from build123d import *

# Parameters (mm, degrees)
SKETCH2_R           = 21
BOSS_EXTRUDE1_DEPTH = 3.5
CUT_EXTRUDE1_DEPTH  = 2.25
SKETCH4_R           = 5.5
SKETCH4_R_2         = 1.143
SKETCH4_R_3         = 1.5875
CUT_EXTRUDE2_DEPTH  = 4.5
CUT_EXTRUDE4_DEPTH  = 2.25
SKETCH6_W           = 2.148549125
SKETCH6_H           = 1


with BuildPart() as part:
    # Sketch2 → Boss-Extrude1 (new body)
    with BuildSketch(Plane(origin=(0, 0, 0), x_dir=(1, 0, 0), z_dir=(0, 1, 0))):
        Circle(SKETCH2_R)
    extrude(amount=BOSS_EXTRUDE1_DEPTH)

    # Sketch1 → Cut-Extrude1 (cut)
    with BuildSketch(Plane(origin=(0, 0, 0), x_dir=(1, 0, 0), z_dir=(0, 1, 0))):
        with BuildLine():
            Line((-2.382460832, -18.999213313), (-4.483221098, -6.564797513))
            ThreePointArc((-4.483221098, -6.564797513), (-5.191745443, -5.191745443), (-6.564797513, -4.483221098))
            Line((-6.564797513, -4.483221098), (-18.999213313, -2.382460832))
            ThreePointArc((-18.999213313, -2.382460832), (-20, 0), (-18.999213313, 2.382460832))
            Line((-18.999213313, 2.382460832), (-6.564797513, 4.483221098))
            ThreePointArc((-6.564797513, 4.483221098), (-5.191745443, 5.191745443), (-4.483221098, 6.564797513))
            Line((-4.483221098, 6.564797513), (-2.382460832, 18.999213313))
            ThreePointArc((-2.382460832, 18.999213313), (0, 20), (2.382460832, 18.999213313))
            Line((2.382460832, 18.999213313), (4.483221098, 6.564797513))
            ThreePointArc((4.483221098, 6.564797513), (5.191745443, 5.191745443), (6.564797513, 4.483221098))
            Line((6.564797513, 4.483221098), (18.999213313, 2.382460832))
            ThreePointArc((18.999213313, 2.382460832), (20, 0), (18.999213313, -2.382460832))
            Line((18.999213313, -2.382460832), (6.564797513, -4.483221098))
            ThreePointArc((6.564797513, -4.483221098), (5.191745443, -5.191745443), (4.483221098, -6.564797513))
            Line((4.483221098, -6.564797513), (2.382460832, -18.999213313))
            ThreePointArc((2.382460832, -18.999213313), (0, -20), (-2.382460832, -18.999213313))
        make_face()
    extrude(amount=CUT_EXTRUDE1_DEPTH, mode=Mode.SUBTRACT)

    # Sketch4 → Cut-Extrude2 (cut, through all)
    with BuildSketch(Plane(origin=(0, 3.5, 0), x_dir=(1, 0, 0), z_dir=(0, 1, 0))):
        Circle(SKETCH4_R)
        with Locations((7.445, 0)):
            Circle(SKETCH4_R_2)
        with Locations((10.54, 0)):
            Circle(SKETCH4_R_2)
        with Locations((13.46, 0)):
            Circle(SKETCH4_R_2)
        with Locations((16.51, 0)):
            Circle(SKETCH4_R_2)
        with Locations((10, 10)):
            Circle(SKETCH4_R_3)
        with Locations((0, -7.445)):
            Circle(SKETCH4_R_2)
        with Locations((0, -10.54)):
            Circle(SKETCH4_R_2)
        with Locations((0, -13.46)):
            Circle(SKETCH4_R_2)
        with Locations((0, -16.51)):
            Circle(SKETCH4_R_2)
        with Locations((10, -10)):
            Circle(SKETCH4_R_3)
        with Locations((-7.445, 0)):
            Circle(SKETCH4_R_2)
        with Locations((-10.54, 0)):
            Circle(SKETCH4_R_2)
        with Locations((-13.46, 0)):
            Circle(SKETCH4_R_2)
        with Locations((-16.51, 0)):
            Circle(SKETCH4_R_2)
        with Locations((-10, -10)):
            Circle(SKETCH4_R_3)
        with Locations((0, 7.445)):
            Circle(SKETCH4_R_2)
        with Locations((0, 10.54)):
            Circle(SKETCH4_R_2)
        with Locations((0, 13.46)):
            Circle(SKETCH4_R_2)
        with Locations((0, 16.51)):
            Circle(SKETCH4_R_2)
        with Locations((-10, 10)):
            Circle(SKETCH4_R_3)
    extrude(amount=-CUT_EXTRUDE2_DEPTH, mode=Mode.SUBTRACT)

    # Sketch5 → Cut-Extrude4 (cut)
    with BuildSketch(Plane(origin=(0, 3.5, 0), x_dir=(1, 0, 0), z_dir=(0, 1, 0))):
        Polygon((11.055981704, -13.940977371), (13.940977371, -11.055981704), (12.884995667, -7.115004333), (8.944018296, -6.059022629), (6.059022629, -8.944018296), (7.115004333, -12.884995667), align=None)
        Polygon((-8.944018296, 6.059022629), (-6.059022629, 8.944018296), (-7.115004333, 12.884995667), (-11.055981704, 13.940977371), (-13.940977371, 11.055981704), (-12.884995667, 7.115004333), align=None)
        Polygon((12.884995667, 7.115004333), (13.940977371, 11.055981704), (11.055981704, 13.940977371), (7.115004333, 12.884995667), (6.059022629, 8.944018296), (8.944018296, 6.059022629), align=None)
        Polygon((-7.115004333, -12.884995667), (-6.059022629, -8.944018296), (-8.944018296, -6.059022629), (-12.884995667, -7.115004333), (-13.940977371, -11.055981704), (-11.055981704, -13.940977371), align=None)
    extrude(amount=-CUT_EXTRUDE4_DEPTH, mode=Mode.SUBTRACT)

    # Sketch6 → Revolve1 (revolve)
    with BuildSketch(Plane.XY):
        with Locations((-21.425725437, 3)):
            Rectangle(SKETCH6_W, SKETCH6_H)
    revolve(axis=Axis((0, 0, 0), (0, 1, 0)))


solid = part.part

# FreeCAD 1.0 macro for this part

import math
import FreeCAD as App
import Part
import Sketcher
Q = App.Units.Quantity


def add_polygon(sketch, points):
    """Adds a closed chain of lines whose ends are joined by coincident constraints."""
    first, n = sketch.GeometryCount, len(points)
    for a, b in zip(points, points[1:] + points[:1]):
        sketch.addGeometry(Part.LineSegment(App.Vector(*a, 0), App.Vector(*b, 0)), False)
    for i in range(n):
        sketch.addConstraint(Sketcher.Constraint("Coincident", first + i, 2, first + (i + 1) % n, 1))

doc = App.newDocument("Part")
body = doc.addObject("PartDesign::Body", "Body")

sketch1 = body.newObject("Sketcher::SketchObject", "Sketch")
sketch1.AttachmentSupport = (doc.getObject("XZ_Plane"), [""])
sketch1.MapMode = "FlatFace"
sketch1.addGeometry(Part.Circle(App.Vector(0, 0, 0), App.Vector(0, 0, 1), 21), False)
sketch1.addConstraint(Sketcher.Constraint("Coincident", 0, 3, -1, 1))
sketch1.addConstraint(Sketcher.Constraint("Diameter", 0, Q("42 mm")))
pad1 = body.newObject("PartDesign::Pad", "Pad")
pad1.Profile = sketch1
pad1.Length = 3.5
pad1.Reversed = True

sketch2 = body.newObject("Sketcher::SketchObject", "Sketch001")
sketch2.AttachmentSupport = (doc.getObject("XZ_Plane"), [""])
sketch2.MapMode = "FlatFace"
sketch2.addGeometry(Part.LineSegment(App.Vector(-4.5, 6.6, 0), App.Vector(-2.4, 19, 0)), False)
sketch2.addGeometry(Part.ArcOfCircle(Part.Circle(App.Vector(0, 16.7, 0), App.Vector(0, 0, 1), 3.3), math.radians(44), math.radians(136)), False)
sketch2.addGeometry(Part.LineSegment(App.Vector(2.4, 19, 0), App.Vector(4.5, 6.6, 0)), False)
sketch2.addGeometry(Part.ArcOfCircle(Part.Circle(App.Vector(7, 7, 0), App.Vector(0, 0, 1), 2.5), math.radians(-170), math.radians(-100)), False)
sketch2.addGeometry(Part.LineSegment(App.Vector(6.6, 4.5, 0), App.Vector(19, 2.4, 0)), False)
sketch2.addGeometry(Part.ArcOfCircle(Part.Circle(App.Vector(16.7, 0, 0), App.Vector(0, 0, 1), 3.3), math.radians(-46), math.radians(46)), False)
sketch2.addGeometry(Part.LineSegment(App.Vector(19, -2.4, 0), App.Vector(6.6, -4.5, 0)), False)
sketch2.addGeometry(Part.ArcOfCircle(Part.Circle(App.Vector(7, -7, 0), App.Vector(0, 0, 1), 2.5), math.radians(100), math.radians(170)), False)
sketch2.addGeometry(Part.LineSegment(App.Vector(4.5, -6.6, 0), App.Vector(2.4, -19, 0)), False)
sketch2.addGeometry(Part.ArcOfCircle(Part.Circle(App.Vector(0, -16.7, 0), App.Vector(0, 0, 1), 3.3), math.radians(-136), math.radians(-44)), False)
sketch2.addGeometry(Part.LineSegment(App.Vector(-2.4, -19, 0), App.Vector(-4.5, -6.6, 0)), False)
sketch2.addGeometry(Part.ArcOfCircle(Part.Circle(App.Vector(-7, -7, 0), App.Vector(0, 0, 1), 2.5), math.radians(10), math.radians(80)), False)
sketch2.addGeometry(Part.LineSegment(App.Vector(-6.6, -4.5, 0), App.Vector(-19, -2.4, 0)), False)
sketch2.addGeometry(Part.ArcOfCircle(Part.Circle(App.Vector(-16.7, 0, 0), App.Vector(0, 0, 1), 3.3), math.radians(134), math.radians(226)), False)
sketch2.addGeometry(Part.LineSegment(App.Vector(-19, 2.4, 0), App.Vector(-6.6, 4.5, 0)), False)
sketch2.addGeometry(Part.ArcOfCircle(Part.Circle(App.Vector(-7, 7, 0), App.Vector(0, 0, 1), 2.5), math.radians(-80), math.radians(-10)), False)
sketch2.addConstraint(Sketcher.Constraint("Coincident", 0, 2, 1, 2))
sketch2.addConstraint(Sketcher.Constraint("Coincident", 1, 1, 2, 1))
sketch2.addConstraint(Sketcher.Constraint("Tangent", 2, 2, 3, 1))
sketch2.addConstraint(Sketcher.Constraint("Tangent", 3, 2, 4, 1))
sketch2.addConstraint(Sketcher.Constraint("Coincident", 4, 2, 5, 2))
sketch2.addConstraint(Sketcher.Constraint("Coincident", 5, 1, 6, 1))
sketch2.addConstraint(Sketcher.Constraint("Tangent", 6, 2, 7, 1))
sketch2.addConstraint(Sketcher.Constraint("Tangent", 7, 2, 8, 1))
sketch2.addConstraint(Sketcher.Constraint("Coincident", 8, 2, 9, 2))
sketch2.addConstraint(Sketcher.Constraint("Coincident", 9, 1, 10, 1))
sketch2.addConstraint(Sketcher.Constraint("Tangent", 10, 2, 11, 1))
sketch2.addConstraint(Sketcher.Constraint("Tangent", 11, 2, 12, 1))
sketch2.addConstraint(Sketcher.Constraint("Coincident", 12, 2, 13, 2))
sketch2.addConstraint(Sketcher.Constraint("Coincident", 13, 1, 14, 1))
sketch2.addConstraint(Sketcher.Constraint("Tangent", 14, 2, 15, 1))
sketch2.addConstraint(Sketcher.Constraint("Tangent", 15, 2, 0, 1))
sketch2.addConstraint(Sketcher.Constraint("Equal", 1, 5))
sketch2.addConstraint(Sketcher.Constraint("Equal", 3, 7))
sketch2.addConstraint(Sketcher.Constraint("Equal", 5, 9))
sketch2.addConstraint(Sketcher.Constraint("Equal", 7, 11))
sketch2.addConstraint(Sketcher.Constraint("Equal", 9, 13))
sketch2.addConstraint(Sketcher.Constraint("Equal", 11, 15))
sketch2.addConstraint(Sketcher.Constraint("Symmetric", 1, 3, 9, 3, -1, 1))
sketch2.addConstraint(Sketcher.Constraint("Symmetric", 3, 3, 11, 3, -1, 1))
sketch2.addConstraint(Sketcher.Constraint("Symmetric", 5, 3, 13, 3, -1, 1))
sketch2.addConstraint(Sketcher.Constraint("Symmetric", 7, 3, 15, 3, -1, 1))
sketch2.addConstraint(Sketcher.Constraint("Symmetric", 7, 3, 11, 3, -2))
sketch2.addConstraint(Sketcher.Constraint("Symmetric", 0, 2, 1, 1, -2))
sketch2.addConstraint(Sketcher.Constraint("Symmetric", 5, 1, 12, 2, -2))
sketch2.addConstraint(Sketcher.Constraint("Perpendicular", 0, 4))
sketch2.addConstraint(Sketcher.Constraint("Perpendicular", 2, 6))
sketch2.addConstraint(Sketcher.Constraint("Perpendicular", 4, 8))
sketch2.addConstraint(Sketcher.Constraint("Perpendicular", 6, 10))
sketch2.addConstraint(Sketcher.Constraint("Perpendicular", 10, 14))
sketch2.addConstraint(Sketcher.Constraint("Equal", 2, 4))
sketch2.addConstraint(Sketcher.Constraint("Radius", 3, Q("2.540242 mm")))
sketch2.addConstraint(Sketcher.Constraint("Radius", 1, Q("3.336222 mm")))
sketch2.addConstraint(Sketcher.Constraint("DistanceX", 0, 2, -1, 1, Q("2.382461 mm")))
sketch2.addConstraint(Sketcher.Constraint("DistanceX", -1, 1, 2, 2, Q("4.483221 mm")))
sketch2.addConstraint(Sketcher.Constraint("DistanceY", -1, 1, 3, 2, Q("4.483221 mm")))
sketch2.addConstraint(Sketcher.Constraint("DistanceY", 3, 3, 1, 3, Q("9.67581 mm")))
pocket1 = body.newObject("PartDesign::Pocket", "Pocket")
pocket1.Profile = sketch2
pocket1.Length = 2.25

sketch3 = body.newObject("Sketcher::SketchObject", "Sketch002")
sketch3.AttachmentSupport = (doc.getObject("XZ_Plane"), [""])
sketch3.MapMode = "FlatFace"
sketch3.AttachmentOffset = App.Placement(App.Vector(0, 0, -3.5), App.Rotation())
sketch3.addGeometry(Part.Circle(App.Vector(0, 0, 0), App.Vector(0, 0, 1), 5.5), False)
sketch3.addGeometry(Part.Circle(App.Vector(7.4, 0, 0), App.Vector(0, 0, 1), 1.1), False)
sketch3.addGeometry(Part.Circle(App.Vector(10.5, 0, 0), App.Vector(0, 0, 1), 1.1), False)
sketch3.addGeometry(Part.Circle(App.Vector(13.5, 0, 0), App.Vector(0, 0, 1), 1.1), False)
sketch3.addGeometry(Part.Circle(App.Vector(16.5, 0, 0), App.Vector(0, 0, 1), 1.1), False)
sketch3.addGeometry(Part.Circle(App.Vector(10, -10, 0), App.Vector(0, 0, 1), 1.6), False)
sketch3.addGeometry(Part.Circle(App.Vector(0, 7.4, 0), App.Vector(0, 0, 1), 1.1), False)
sketch3.addGeometry(Part.Circle(App.Vector(0, 10.5, 0), App.Vector(0, 0, 1), 1.1), False)
sketch3.addGeometry(Part.Circle(App.Vector(0, 13.5, 0), App.Vector(0, 0, 1), 1.1), False)
sketch3.addGeometry(Part.Circle(App.Vector(0, 16.5, 0), App.Vector(0, 0, 1), 1.1), False)
sketch3.addGeometry(Part.Circle(App.Vector(10, 10, 0), App.Vector(0, 0, 1), 1.6), False)
sketch3.addGeometry(Part.Circle(App.Vector(-7.4, 0, 0), App.Vector(0, 0, 1), 1.1), False)
sketch3.addGeometry(Part.Circle(App.Vector(-10.5, 0, 0), App.Vector(0, 0, 1), 1.1), False)
sketch3.addGeometry(Part.Circle(App.Vector(-13.5, 0, 0), App.Vector(0, 0, 1), 1.1), False)
sketch3.addGeometry(Part.Circle(App.Vector(-16.5, 0, 0), App.Vector(0, 0, 1), 1.1), False)
sketch3.addGeometry(Part.Circle(App.Vector(-10, 10, 0), App.Vector(0, 0, 1), 1.6), False)
sketch3.addGeometry(Part.Circle(App.Vector(0, -7.4, 0), App.Vector(0, 0, 1), 1.1), False)
sketch3.addGeometry(Part.Circle(App.Vector(0, -10.5, 0), App.Vector(0, 0, 1), 1.1), False)
sketch3.addGeometry(Part.Circle(App.Vector(0, -13.5, 0), App.Vector(0, 0, 1), 1.1), False)
sketch3.addGeometry(Part.Circle(App.Vector(0, -16.5, 0), App.Vector(0, 0, 1), 1.1), False)
sketch3.addGeometry(Part.Circle(App.Vector(-10, -10, 0), App.Vector(0, 0, 1), 1.6), False)
sketch3.addConstraint(Sketcher.Constraint("Coincident", 0, 3, -1, 1))
sketch3.addConstraint(Sketcher.Constraint("Equal", 1, 2))
sketch3.addConstraint(Sketcher.Constraint("Equal", 2, 3))
sketch3.addConstraint(Sketcher.Constraint("Equal", 3, 4))
sketch3.addConstraint(Sketcher.Constraint("Equal", 4, 6))
sketch3.addConstraint(Sketcher.Constraint("Equal", 6, 7))
sketch3.addConstraint(Sketcher.Constraint("Equal", 7, 8))
sketch3.addConstraint(Sketcher.Constraint("Equal", 8, 9))
sketch3.addConstraint(Sketcher.Constraint("Equal", 5, 10))
sketch3.addConstraint(Sketcher.Constraint("Equal", 9, 11))
sketch3.addConstraint(Sketcher.Constraint("Equal", 11, 12))
sketch3.addConstraint(Sketcher.Constraint("Equal", 12, 13))
sketch3.addConstraint(Sketcher.Constraint("Equal", 13, 14))
sketch3.addConstraint(Sketcher.Constraint("Equal", 10, 15))
sketch3.addConstraint(Sketcher.Constraint("Equal", 14, 16))
sketch3.addConstraint(Sketcher.Constraint("Equal", 16, 17))
sketch3.addConstraint(Sketcher.Constraint("Equal", 17, 18))
sketch3.addConstraint(Sketcher.Constraint("Equal", 18, 19))
sketch3.addConstraint(Sketcher.Constraint("Equal", 15, 20))
sketch3.addConstraint(Sketcher.Constraint("Symmetric", 1, 3, 11, 3, -1, 1))
sketch3.addConstraint(Sketcher.Constraint("Symmetric", 2, 3, 12, 3, -1, 1))
sketch3.addConstraint(Sketcher.Constraint("Symmetric", 3, 3, 13, 3, -1, 1))
sketch3.addConstraint(Sketcher.Constraint("Symmetric", 4, 3, 14, 3, -1, 1))
sketch3.addConstraint(Sketcher.Constraint("Symmetric", 5, 3, 15, 3, -1, 1))
sketch3.addConstraint(Sketcher.Constraint("Symmetric", 6, 3, 16, 3, -1, 1))
sketch3.addConstraint(Sketcher.Constraint("Symmetric", 7, 3, 17, 3, -1, 1))
sketch3.addConstraint(Sketcher.Constraint("Symmetric", 8, 3, 18, 3, -1, 1))
sketch3.addConstraint(Sketcher.Constraint("Symmetric", 9, 3, 19, 3, -1, 1))
sketch3.addConstraint(Sketcher.Constraint("Symmetric", 10, 3, 20, 3, -1, 1))
sketch3.addConstraint(Sketcher.Constraint("Symmetric", 10, 3, 15, 3, -2))
sketch3.addConstraint(Sketcher.Constraint("PointOnObject", 1, 3, -1))
sketch3.addConstraint(Sketcher.Constraint("PointOnObject", 2, 3, -1))
sketch3.addConstraint(Sketcher.Constraint("PointOnObject", 3, 3, -1))
sketch3.addConstraint(Sketcher.Constraint("PointOnObject", 4, 3, -1))
sketch3.addConstraint(Sketcher.Constraint("PointOnObject", 6, 3, -2))
sketch3.addConstraint(Sketcher.Constraint("PointOnObject", 7, 3, -2))
sketch3.addConstraint(Sketcher.Constraint("PointOnObject", 8, 3, -2))
sketch3.addConstraint(Sketcher.Constraint("PointOnObject", 9, 3, -2))
sketch3.addConstraint(Sketcher.Constraint("Diameter", 0, Q("11 mm")))
sketch3.addConstraint(Sketcher.Constraint("Diameter", 1, Q("2.286 mm")))
sketch3.addConstraint(Sketcher.Constraint("Diameter", 5, Q("3.175 mm")))
sketch3.addConstraint(Sketcher.Constraint("DistanceX", -1, 1, 5, 3, Q("10 mm")))
sketch3.addConstraint(Sketcher.Constraint("DistanceY", 5, 3, -1, 1, Q("10 mm")))
sketch3.addConstraint(Sketcher.Constraint("DistanceX", -1, 1, 2, 3, Q("10.54 mm")))
sketch3.addConstraint(Sketcher.Constraint("DistanceX", -1, 1, 3, 3, Q("13.46 mm")))
sketch3.addConstraint(Sketcher.Constraint("DistanceX", -1, 1, 4, 3, Q("16.51 mm")))
sketch3.addConstraint(Sketcher.Constraint("DistanceY", -1, 1, 7, 3, Q("10.54 mm")))
sketch3.addConstraint(Sketcher.Constraint("DistanceY", -1, 1, 8, 3, Q("13.46 mm")))
sketch3.addConstraint(Sketcher.Constraint("DistanceY", -1, 1, 9, 3, Q("16.51 mm")))
sketch3.addConstraint(Sketcher.Constraint("DistanceX", 11, 3, 1, 3, Q("14.89 mm")))
sketch3.addConstraint(Sketcher.Constraint("DistanceY", -1, 1, 6, 3, Q("7.445 mm")))
pocket2 = body.newObject("PartDesign::Pocket", "Pocket001")
pocket2.Profile = sketch3
pocket2.Type = "ThroughAll"
pocket2.Reversed = True

sketch4 = body.newObject("Sketcher::SketchObject", "Sketch003")
sketch4.AttachmentSupport = (doc.getObject("XZ_Plane"), [""])
sketch4.MapMode = "FlatFace"
sketch4.AttachmentOffset = App.Placement(App.Vector(0, 0, -3.5), App.Rotation())
add_polygon(sketch4, [(11.1, 13.9), (13.9, 11.1), (12.9, 7.1), (8.9, 6.1), (6.1, 8.9), (7.1, 12.9)])
add_polygon(sketch4, [(-8.9, -6.1), (-6.1, -8.9), (-7.1, -12.9), (-11.1, -13.9), (-13.9, -11.1), (-12.9, -7.1)])
add_polygon(sketch4, [(12.9, -7.1), (13.9, -11.1), (11.1, -13.9), (7.1, -12.9), (6.1, -8.9), (8.9, -6.1)])
add_polygon(sketch4, [(-7.1, 12.9), (-6.1, 8.9), (-8.9, 6.1), (-12.9, 7.1), (-13.9, 11.1), (-11.1, 13.9)])
sketch4.addConstraint(Sketcher.Constraint("Symmetric", 3, 2, 6, 2, -1, 1))
sketch4.addConstraint(Sketcher.Constraint("Symmetric", 4, 2, 7, 2, -1, 1))
sketch4.addConstraint(Sketcher.Constraint("Symmetric", 5, 2, 8, 2, -1, 1))
sketch4.addConstraint(Sketcher.Constraint("Symmetric", 0, 2, 9, 2, -1, 1))
sketch4.addConstraint(Sketcher.Constraint("Symmetric", 1, 2, 10, 2, -1, 1))
sketch4.addConstraint(Sketcher.Constraint("Symmetric", 2, 2, 11, 2, -1, 1))
sketch4.addConstraint(Sketcher.Constraint("Symmetric", 15, 2, 18, 2, -1, 1))
sketch4.addConstraint(Sketcher.Constraint("Symmetric", 16, 2, 19, 2, -1, 1))
sketch4.addConstraint(Sketcher.Constraint("Symmetric", 17, 2, 20, 2, -1, 1))
sketch4.addConstraint(Sketcher.Constraint("Symmetric", 12, 2, 21, 2, -1, 1))
sketch4.addConstraint(Sketcher.Constraint("Symmetric", 13, 2, 22, 2, -1, 1))
sketch4.addConstraint(Sketcher.Constraint("Symmetric", 14, 2, 23, 2, -1, 1))
sketch4.addConstraint(Sketcher.Constraint("Symmetric", 9, 2, 12, 2, -2))
sketch4.addConstraint(Sketcher.Constraint("Symmetric", 8, 2, 13, 2, -2))
sketch4.addConstraint(Sketcher.Constraint("Symmetric", 7, 2, 14, 2, -2))
sketch4.addConstraint(Sketcher.Constraint("Symmetric", 6, 2, 15, 2, -2))
sketch4.addConstraint(Sketcher.Constraint("Symmetric", 11, 2, 16, 2, -2))
sketch4.addConstraint(Sketcher.Constraint("Symmetric", 10, 2, 17, 2, -2))
sketch4.addConstraint(Sketcher.Constraint("Parallel", 0, 3))
sketch4.addConstraint(Sketcher.Constraint("Parallel", 1, 4))
sketch4.addConstraint(Sketcher.Constraint("Parallel", 2, 5))
sketch4.addConstraint(Sketcher.Constraint("Perpendicular", 11, 12))
sketch4.addConstraint(Sketcher.Constraint("Perpendicular", 9, 13))
sketch4.addConstraint(Sketcher.Constraint("Equal", 0, 1))
sketch4.addConstraint(Sketcher.Constraint("Equal", 1, 2))
sketch4.addConstraint(Sketcher.Constraint("Equal", 2, 3))
sketch4.addConstraint(Sketcher.Constraint("Angle", 1, Q("-105 deg")))
sketch4.addConstraint(Sketcher.Constraint("DistanceX", 6, 2, 0, 2, Q("20 mm")))
sketch4.addConstraint(Sketcher.Constraint("DistanceY", 6, 2, 0, 2, Q("20 mm")))
sketch4.addConstraint(Sketcher.Constraint("Distance", 0, Q("4.08 mm")))
pocket3 = body.newObject("PartDesign::Pocket", "Pocket002")
pocket3.Profile = sketch4
pocket3.Length = 2.25
pocket3.Reversed = True

sketch5 = body.newObject("Sketcher::SketchObject", "Sketch004")
sketch5.AttachmentSupport = (doc.getObject("XY_Plane"), [""])
sketch5.MapMode = "FlatFace"
add_polygon(sketch5, [(-22.5, 3.5), (-22.5, 2.5), (-20.4, 2.5), (-20.4, 3.5)])
sketch5.addConstraint(Sketcher.Constraint("Vertical", 0))
sketch5.addConstraint(Sketcher.Constraint("Horizontal", 1))
sketch5.addConstraint(Sketcher.Constraint("Vertical", 2))
sketch5.addConstraint(Sketcher.Constraint("Horizontal", 3))
sketch5.addConstraint(Sketcher.Constraint("DistanceY", 0, 2, 0, 1, Q("1 mm")))
sketch5.addConstraint(Sketcher.Constraint("DistanceX", 0, 2, -1, 1, Q("22.5 mm")))
sketch5.addConstraint(Sketcher.Constraint("DistanceY", -1, 1, 0, 2, Q("2.5 mm")))
sketch5.addConstraint(Sketcher.Constraint("DistanceX", 1, 1, 1, 2, Q("2.148549 mm")))
revolution = body.newObject("PartDesign::Revolution", "Revolution")
revolution.Profile = sketch5
revolution.ReferenceAxis = (sketch5, ["V_Axis"])
revolution.Angle = 360

doc.recompute()
